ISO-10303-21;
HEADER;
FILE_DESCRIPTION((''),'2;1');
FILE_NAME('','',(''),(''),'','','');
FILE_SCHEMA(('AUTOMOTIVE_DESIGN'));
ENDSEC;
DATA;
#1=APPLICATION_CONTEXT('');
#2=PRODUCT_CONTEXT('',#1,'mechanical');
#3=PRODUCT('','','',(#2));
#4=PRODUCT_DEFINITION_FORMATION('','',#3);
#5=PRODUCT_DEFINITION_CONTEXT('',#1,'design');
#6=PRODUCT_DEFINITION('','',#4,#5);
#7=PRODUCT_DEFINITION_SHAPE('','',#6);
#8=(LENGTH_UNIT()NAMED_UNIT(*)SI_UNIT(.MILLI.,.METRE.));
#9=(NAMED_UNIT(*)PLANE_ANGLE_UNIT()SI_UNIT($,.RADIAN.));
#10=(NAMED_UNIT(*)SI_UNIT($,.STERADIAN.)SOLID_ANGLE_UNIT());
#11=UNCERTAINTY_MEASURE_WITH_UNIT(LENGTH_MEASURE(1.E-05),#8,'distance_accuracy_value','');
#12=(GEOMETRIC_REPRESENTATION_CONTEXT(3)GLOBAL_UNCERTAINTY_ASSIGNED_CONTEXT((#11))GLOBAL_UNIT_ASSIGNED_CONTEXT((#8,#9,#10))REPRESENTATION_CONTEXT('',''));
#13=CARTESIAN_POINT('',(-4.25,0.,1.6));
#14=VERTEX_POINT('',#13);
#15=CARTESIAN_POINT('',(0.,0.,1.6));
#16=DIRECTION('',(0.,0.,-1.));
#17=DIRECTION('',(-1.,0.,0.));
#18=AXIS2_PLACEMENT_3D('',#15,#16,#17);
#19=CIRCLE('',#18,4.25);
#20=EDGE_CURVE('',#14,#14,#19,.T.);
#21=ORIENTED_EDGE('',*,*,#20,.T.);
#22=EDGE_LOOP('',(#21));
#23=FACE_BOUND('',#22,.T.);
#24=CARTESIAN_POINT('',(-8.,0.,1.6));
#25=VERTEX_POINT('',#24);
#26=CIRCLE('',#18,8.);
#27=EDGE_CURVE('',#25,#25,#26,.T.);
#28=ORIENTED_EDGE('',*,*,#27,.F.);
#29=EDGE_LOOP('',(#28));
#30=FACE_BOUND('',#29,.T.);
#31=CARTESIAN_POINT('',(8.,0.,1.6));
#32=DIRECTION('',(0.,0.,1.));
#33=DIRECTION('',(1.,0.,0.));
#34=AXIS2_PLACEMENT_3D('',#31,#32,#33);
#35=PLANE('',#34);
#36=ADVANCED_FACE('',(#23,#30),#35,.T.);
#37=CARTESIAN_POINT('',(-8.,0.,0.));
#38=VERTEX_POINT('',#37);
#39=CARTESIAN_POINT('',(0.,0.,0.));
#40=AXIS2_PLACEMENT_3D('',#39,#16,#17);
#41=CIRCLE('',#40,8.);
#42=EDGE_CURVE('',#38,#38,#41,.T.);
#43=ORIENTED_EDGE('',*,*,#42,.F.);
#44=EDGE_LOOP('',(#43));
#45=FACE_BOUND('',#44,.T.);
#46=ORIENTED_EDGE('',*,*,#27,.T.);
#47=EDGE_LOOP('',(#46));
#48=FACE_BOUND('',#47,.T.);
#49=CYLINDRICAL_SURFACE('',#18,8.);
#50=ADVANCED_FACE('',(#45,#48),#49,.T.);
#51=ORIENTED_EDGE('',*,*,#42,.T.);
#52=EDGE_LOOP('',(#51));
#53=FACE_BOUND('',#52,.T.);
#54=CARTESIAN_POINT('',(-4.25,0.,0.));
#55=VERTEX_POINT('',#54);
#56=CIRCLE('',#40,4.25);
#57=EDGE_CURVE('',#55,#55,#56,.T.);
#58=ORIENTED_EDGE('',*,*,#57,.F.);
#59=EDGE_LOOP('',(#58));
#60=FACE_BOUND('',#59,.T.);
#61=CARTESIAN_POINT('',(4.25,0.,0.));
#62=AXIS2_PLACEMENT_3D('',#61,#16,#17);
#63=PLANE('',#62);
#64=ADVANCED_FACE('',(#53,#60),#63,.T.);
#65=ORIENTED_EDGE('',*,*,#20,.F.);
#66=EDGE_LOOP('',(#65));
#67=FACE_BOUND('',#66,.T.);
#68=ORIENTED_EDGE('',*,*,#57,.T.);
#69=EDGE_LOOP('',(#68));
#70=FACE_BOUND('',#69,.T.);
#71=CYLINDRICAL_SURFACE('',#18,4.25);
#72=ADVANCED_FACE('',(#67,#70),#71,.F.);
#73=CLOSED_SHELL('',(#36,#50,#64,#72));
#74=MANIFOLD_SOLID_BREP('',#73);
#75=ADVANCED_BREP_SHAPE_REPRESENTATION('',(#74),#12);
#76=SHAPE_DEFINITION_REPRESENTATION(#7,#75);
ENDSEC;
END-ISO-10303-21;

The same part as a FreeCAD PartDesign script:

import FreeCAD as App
import Part
import Sketcher

V = App.Vector


def add_polygon(sketch, points):
    """Adds a closed chain of lines whose ends are joined by coincident constraints."""
    first, n = sketch.GeometryCount, len(points)
    for a, b in zip(points, points[1:] + points[:1]):
        sketch.addGeometry(Part.LineSegment(App.Vector(*a, 0), App.Vector(*b, 0)), False)
    for i in range(n):
        sketch.addConstraint(Sketcher.Constraint("Coincident", first + i, 2, first + (i + 1) % n, 1))

doc = App.newDocument("Part")
body = doc.addObject("PartDesign::Body", "Body")

# Sketch on XZ plane
sketch1 = body.newObject("Sketcher::SketchObject", "Sketch")
sketch1.AttachmentSupport = (doc.getObject("XZ_Plane"), [""])
sketch1.MapMode = "FlatFace"
add_polygon(sketch1, [(4.2, 1.6), (4.2, 0), (8, 0), (8, 1.6)])  # lines 0-3
sketch1.addConstraint([
    Sketcher.Constraint("Vertical", 0),
    Sketcher.Constraint("Horizontal", 1),
    Sketcher.Constraint("Vertical", 2),
    Sketcher.Constraint("Horizontal", 3),
    Sketcher.Constraint("PointOnObject", 0, 2, -1),
    Sketcher.Constraint("DistanceY", 0, 2, 0, 1, 1.6),
    Sketcher.Constraint("DistanceX", -1, 1, 1, 2, 8.0),
    Sketcher.Constraint("DistanceX", 1, 1, 1, 2, 3.75),
])
revolution = body.newObject("PartDesign::Revolution", "Revolution")
revolution.Profile = sketch1
revolution.ReferenceAxis = (sketch1, ["V_Axis"])
revolution.Angle = 360

doc.recompute()
